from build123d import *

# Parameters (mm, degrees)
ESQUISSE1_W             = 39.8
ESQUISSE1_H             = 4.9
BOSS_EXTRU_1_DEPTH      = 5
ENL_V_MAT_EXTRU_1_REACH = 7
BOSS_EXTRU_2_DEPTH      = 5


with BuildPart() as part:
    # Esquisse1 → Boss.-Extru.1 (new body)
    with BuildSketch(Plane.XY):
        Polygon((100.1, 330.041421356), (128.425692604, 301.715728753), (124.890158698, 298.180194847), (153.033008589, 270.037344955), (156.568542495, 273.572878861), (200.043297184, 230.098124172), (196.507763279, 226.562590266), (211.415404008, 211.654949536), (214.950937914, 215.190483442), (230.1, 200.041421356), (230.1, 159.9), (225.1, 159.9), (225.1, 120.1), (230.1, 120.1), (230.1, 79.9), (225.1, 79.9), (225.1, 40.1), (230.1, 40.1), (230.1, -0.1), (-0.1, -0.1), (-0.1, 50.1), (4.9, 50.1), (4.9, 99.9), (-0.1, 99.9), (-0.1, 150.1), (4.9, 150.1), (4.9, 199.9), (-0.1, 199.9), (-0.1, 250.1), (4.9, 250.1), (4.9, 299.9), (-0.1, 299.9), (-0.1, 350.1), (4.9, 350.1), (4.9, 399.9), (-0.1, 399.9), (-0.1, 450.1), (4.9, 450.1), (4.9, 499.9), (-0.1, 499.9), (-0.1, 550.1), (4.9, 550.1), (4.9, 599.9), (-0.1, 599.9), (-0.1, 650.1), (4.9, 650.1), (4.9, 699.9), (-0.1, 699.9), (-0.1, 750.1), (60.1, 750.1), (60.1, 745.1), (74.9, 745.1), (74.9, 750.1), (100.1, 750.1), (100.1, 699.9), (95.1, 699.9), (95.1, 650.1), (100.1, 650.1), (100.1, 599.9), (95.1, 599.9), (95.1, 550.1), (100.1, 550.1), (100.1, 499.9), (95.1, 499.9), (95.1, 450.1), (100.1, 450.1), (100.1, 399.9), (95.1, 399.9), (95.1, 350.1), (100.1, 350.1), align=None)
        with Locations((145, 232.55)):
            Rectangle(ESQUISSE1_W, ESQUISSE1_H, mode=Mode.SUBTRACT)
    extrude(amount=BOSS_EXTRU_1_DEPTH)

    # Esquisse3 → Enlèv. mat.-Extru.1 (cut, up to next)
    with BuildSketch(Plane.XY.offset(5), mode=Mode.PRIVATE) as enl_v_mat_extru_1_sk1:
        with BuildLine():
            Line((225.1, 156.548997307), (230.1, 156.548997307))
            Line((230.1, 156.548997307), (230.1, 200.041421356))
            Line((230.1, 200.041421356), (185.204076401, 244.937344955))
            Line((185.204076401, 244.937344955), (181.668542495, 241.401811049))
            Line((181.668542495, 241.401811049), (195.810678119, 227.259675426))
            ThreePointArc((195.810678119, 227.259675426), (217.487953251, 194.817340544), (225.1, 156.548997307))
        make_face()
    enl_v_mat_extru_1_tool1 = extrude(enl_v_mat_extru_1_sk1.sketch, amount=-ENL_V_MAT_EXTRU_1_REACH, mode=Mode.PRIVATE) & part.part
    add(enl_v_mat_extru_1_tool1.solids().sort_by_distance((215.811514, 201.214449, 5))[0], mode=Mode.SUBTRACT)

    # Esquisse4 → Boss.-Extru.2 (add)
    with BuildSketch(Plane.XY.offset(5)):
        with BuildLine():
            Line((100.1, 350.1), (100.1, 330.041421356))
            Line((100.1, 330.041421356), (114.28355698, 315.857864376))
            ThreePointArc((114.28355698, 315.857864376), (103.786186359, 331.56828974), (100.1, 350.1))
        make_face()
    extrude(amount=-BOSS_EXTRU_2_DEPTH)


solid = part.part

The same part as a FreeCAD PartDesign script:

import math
import FreeCAD as App
import Part
import Sketcher
Q = App.Units.Quantity


def add_polygon(sketch, points):
    """Adds a closed chain of lines whose ends are joined by coincident constraints."""
    first, n = sketch.GeometryCount, len(points)
    for a, b in zip(points, points[1:] + points[:1]):
        sketch.addGeometry(Part.LineSegment(App.Vector(*a, 0), App.Vector(*b, 0)), False)
    for i in range(n):
        sketch.addConstraint(Sketcher.Constraint("Coincident", first + i, 2, first + (i + 1) % n, 1))

doc = App.newDocument("Part")
body = doc.addObject("PartDesign::Body", "Body")

sketch1 = doc.addObject("Sketcher::SketchObject", "Sketch")
body.addObject(sketch1)
sketch1.AttachmentSupport = (doc.XY_Plane, [""])
sketch1.MapMode = "FlatFace"
add_polygon(sketch1, [(128.4, 301.7), (100.1, 330), (100.1, 350.1), (95.1, 350.1), (95.1, 399.9), (100.1, 399.9), (100.1, 450.1), (95.1, 450.1), (95.1, 499.9), (100.1, 499.9), (100.1, 550.1), (95.1, 550.1), (95.1, 599.9), (100.1, 599.9), (100.1, 650.1), (95.1, 650.1), (95.1, 699.9), (100.1, 699.9), (100.1, 750.1), (74.9, 750.1), (74.9, 745.1), (60.1, 745.1), (60.1, 750.1), (-0.1, 750.1), (-0.1, 699.9), (4.9, 699.9), (4.9, 650.1), (-0.1, 650.1), (-0.1, 599.9), (4.9, 599.9), (4.9, 550.1), (-0.1, 550.1), (-0.1, 499.9), (4.9, 499.9), (4.9, 450.1), (-0.1, 450.1), (-0.1, 399.9), (4.9, 399.9), (4.9, 350.1), (-0.1, 350.1), (-0.1, 299.9), (4.9, 299.9), (4.9, 250.1), (-0.1, 250.1), (-0.1, 199.9), (4.9, 199.9), (4.9, 150.1), (-0.1, 150.1), (-0.1, 99.9), (4.9, 99.9), (4.9, 50.1), (-0.1, 50.1), (-0.1, -0.1), (230.1, -0.1), (230.1, 40.1), (225.1, 40.1), (225.1, 79.9), (230.1, 79.9), (230.1, 120.1), (225.1, 120.1), (225.1, 159.9), (230.1, 159.9), (230.1, 200), (215, 215.2), (211.4, 211.7), (196.5, 226.6), (200, 230.1), (156.6, 273.6), (153, 270), (124.9, 298.2)])
add_polygon(sketch1, [(125.1, 230.1), (125.1, 235), (164.9, 235), (164.9, 230.1)])
sketch1.addConstraint(Sketcher.Constraint("Vertical", 1))
sketch1.addConstraint(Sketcher.Constraint("Horizontal", 2))
sketch1.addConstraint(Sketcher.Constraint("Vertical", 3))
sketch1.addConstraint(Sketcher.Constraint("Horizontal", 4))
sketch1.addConstraint(Sketcher.Constraint("Vertical", 5))
sketch1.addConstraint(Sketcher.Constraint("Horizontal", 6))
sketch1.addConstraint(Sketcher.Constraint("Vertical", 7))
sketch1.addConstraint(Sketcher.Constraint("Horizontal", 8))
sketch1.addConstraint(Sketcher.Constraint("Vertical", 9))
sketch1.addConstraint(Sketcher.Constraint("Horizontal", 10))
sketch1.addConstraint(Sketcher.Constraint("Vertical", 11))
sketch1.addConstraint(Sketcher.Constraint("Horizontal", 12))
sketch1.addConstraint(Sketcher.Constraint("Vertical", 13))
sketch1.addConstraint(Sketcher.Constraint("Horizontal", 14))
sketch1.addConstraint(Sketcher.Constraint("Vertical", 15))
sketch1.addConstraint(Sketcher.Constraint("Horizontal", 16))
sketch1.addConstraint(Sketcher.Constraint("Vertical", 17))
sketch1.addConstraint(Sketcher.Constraint("Horizontal", 18))
sketch1.addConstraint(Sketcher.Constraint("Vertical", 19))
sketch1.addConstraint(Sketcher.Constraint("Horizontal", 20))
sketch1.addConstraint(Sketcher.Constraint("Vertical", 21))
sketch1.addConstraint(Sketcher.Constraint("Horizontal", 22))
sketch1.addConstraint(Sketcher.Constraint("Vertical", 23))
sketch1.addConstraint(Sketcher.Constraint("Horizontal", 24))
sketch1.addConstraint(Sketcher.Constraint("Vertical", 25))
sketch1.addConstraint(Sketcher.Constraint("Horizontal", 26))
sketch1.addConstraint(Sketcher.Constraint("Vertical", 27))
sketch1.addConstraint(Sketcher.Constraint("Horizontal", 28))
sketch1.addConstraint(Sketcher.Constraint("Vertical", 29))
sketch1.addConstraint(Sketcher.Constraint("Horizontal", 30))
sketch1.addConstraint(Sketcher.Constraint("Vertical", 31))
sketch1.addConstraint(Sketcher.Constraint("Horizontal", 32))
sketch1.addConstraint(Sketcher.Constraint("Vertical", 33))
sketch1.addConstraint(Sketcher.Constraint("Horizontal", 34))
sketch1.addConstraint(Sketcher.Constraint("Vertical", 35))
sketch1.addConstraint(Sketcher.Constraint("Horizontal", 36))
sketch1.addConstraint(Sketcher.Constraint("Vertical", 37))
sketch1.addConstraint(Sketcher.Constraint("Horizontal", 38))
sketch1.addConstraint(Sketcher.Constraint("Vertical", 39))
sketch1.addConstraint(Sketcher.Constraint("Horizontal", 40))
sketch1.addConstraint(Sketcher.Constraint("Vertical", 41))
sketch1.addConstraint(Sketcher.Constraint("Horizontal", 42))
sketch1.addConstraint(Sketcher.Constraint("Vertical", 43))
sketch1.addConstraint(Sketcher.Constraint("Horizontal", 44))
sketch1.addConstraint(Sketcher.Constraint("Vertical", 45))
sketch1.addConstraint(Sketcher.Constraint("Horizontal", 46))
sketch1.addConstraint(Sketcher.Constraint("Vertical", 47))
sketch1.addConstraint(Sketcher.Constraint("Horizontal", 48))
sketch1.addConstraint(Sketcher.Constraint("Vertical", 49))
sketch1.addConstraint(Sketcher.Constraint("Horizontal", 50))
sketch1.addConstraint(Sketcher.Constraint("Vertical", 51))
sketch1.addConstraint(Sketcher.Constraint("Horizontal", 52))
sketch1.addConstraint(Sketcher.Constraint("Vertical", 53))
sketch1.addConstraint(Sketcher.Constraint("Horizontal", 54))
sketch1.addConstraint(Sketcher.Constraint("Vertical", 55))
sketch1.addConstraint(Sketcher.Constraint("Horizontal", 56))
sketch1.addConstraint(Sketcher.Constraint("Vertical", 57))
sketch1.addConstraint(Sketcher.Constraint("Horizontal", 58))
sketch1.addConstraint(Sketcher.Constraint("Vertical", 59))
sketch1.addConstraint(Sketcher.Constraint("Horizontal", 60))
sketch1.addConstraint(Sketcher.Constraint("Vertical", 61))
sketch1.addConstraint(Sketcher.Constraint("Vertical", 70))
sketch1.addConstraint(Sketcher.Constraint("Horizontal", 71))
sketch1.addConstraint(Sketcher.Constraint("Vertical", 72))
sketch1.addConstraint(Sketcher.Constraint("Horizontal", 73))
sketch1.addConstraint(Sketcher.Constraint("Parallel", 0, 62))
sketch1.addConstraint(Sketcher.Constraint("Perpendicular", 62, 63))
sketch1.addConstraint(Sketcher.Constraint("Perpendicular", 63, 64))
sketch1.addConstraint(Sketcher.Constraint("Perpendicular", 64, 65))
sketch1.addConstraint(Sketcher.Constraint("Perpendicular", 65, 66))
sketch1.addConstraint(Sketcher.Constraint("Perpendicular", 66, 67))
sketch1.addConstraint(Sketcher.Constraint("Perpendicular", 67, 68))
sketch1.addConstraint(Sketcher.Constraint("Perpendicular", 68, 69))
sketch1.addConstraint(Sketcher.Constraint("Horizontal", 18, 2, 21, 2))
sketch1.addConstraint(Sketcher.Constraint("Horizontal", 16, 2, 23, 2))
sketch1.addConstraint(Sketcher.Constraint("Horizontal", 14, 2, 25, 2))
sketch1.addConstraint(Sketcher.Constraint("Horizontal", 12, 2, 27, 2))
sketch1.addConstraint(Sketcher.Constraint("Horizontal", 10, 2, 29, 2))
sketch1.addConstraint(Sketcher.Constraint("Horizontal", 8, 2, 31, 2))
sketch1.addConstraint(Sketcher.Constraint("Horizontal", 6, 2, 33, 2))
sketch1.addConstraint(Sketcher.Constraint("Horizontal", 4, 2, 35, 2))
sketch1.addConstraint(Sketcher.Constraint("Horizontal", 2, 2, 37, 2))
sketch1.addConstraint(Sketcher.Constraint("Vertical", 1, 2, 4, 2))
sketch1.addConstraint(Sketcher.Constraint("Vertical", 3, 2, 6, 2))
sketch1.addConstraint(Sketcher.Constraint("Vertical", 5, 2, 8, 2))
sketch1.addConstraint(Sketcher.Constraint("Vertical", 7, 2, 10, 2))
sketch1.addConstraint(Sketcher.Constraint("Vertical", 9, 2, 12, 2))
sketch1.addConstraint(Sketcher.Constraint("Vertical", 11, 2, 14, 2))
sketch1.addConstraint(Sketcher.Constraint("Vertical", 13, 2, 16, 2))
sketch1.addConstraint(Sketcher.Constraint("Vertical", 23, 2, 26, 2))
sketch1.addConstraint(Sketcher.Constraint("Vertical", 25, 2, 28, 2))
sketch1.addConstraint(Sketcher.Constraint("Vertical", 27, 2, 30, 2))
sketch1.addConstraint(Sketcher.Constraint("Vertical", 29, 2, 32, 2))
sketch1.addConstraint(Sketcher.Constraint("Vertical", 31, 2, 34, 2))
sketch1.addConstraint(Sketcher.Constraint("Vertical", 33, 2, 36, 2))
sketch1.addConstraint(Sketcher.Constraint("Vertical", 35, 2, 38, 2))
sketch1.addConstraint(Sketcher.Constraint("Vertical", 37, 2, 40, 2))
sketch1.addConstraint(Sketcher.Constraint("Vertical", 39, 2, 42, 2))
sketch1.addConstraint(Sketcher.Constraint("Vertical", 41, 2, 44, 2))
sketch1.addConstraint(Sketcher.Constraint("Vertical", 43, 2, 46, 2))
sketch1.addConstraint(Sketcher.Constraint("Vertical", 45, 2, 48, 2))
sketch1.addConstraint(Sketcher.Constraint("Vertical", 47, 2, 50, 2))
sketch1.addConstraint(Sketcher.Constraint("Vertical", 53, 2, 56, 2))
sketch1.addConstraint(Sketcher.Constraint("Vertical", 55, 2, 58, 2))
sketch1.addConstraint(Sketcher.Constraint("Vertical", 57, 2, 60, 2))
sketch1.addConstraint(Sketcher.Constraint("Equal", 16, 24))
sketch1.addConstraint(Sketcher.Constraint("Equal", 50, 54))
sketch1.addConstraint(Sketcher.Constraint("Equal", 3, 7))
sketch1.addConstraint(Sketcher.Constraint("Equal", 5, 9))
sketch1.addConstraint(Sketcher.Constraint("Equal", 7, 11))
sketch1.addConstraint(Sketcher.Constraint("Equal", 9, 13))
sketch1.addConstraint(Sketcher.Constraint("Equal", 11, 15))
sketch1.addConstraint(Sketcher.Constraint("Equal", 13, 17))
sketch1.addConstraint(Sketcher.Constraint("Equal", 60, 19))
sketch1.addConstraint(Sketcher.Constraint("Equal", 35, 39))
sketch1.addConstraint(Sketcher.Constraint("Equal", 37, 41))
sketch1.addConstraint(Sketcher.Constraint("Equal", 39, 43))
sketch1.addConstraint(Sketcher.Constraint("Equal", 41, 45))
sketch1.addConstraint(Sketcher.Constraint("Equal", 43, 47))
sketch1.addConstraint(Sketcher.Constraint("Equal", 45, 49))
sketch1.addConstraint(Sketcher.Constraint("Equal", 47, 51))
sketch1.addConstraint(Sketcher.Constraint("Equal", 73, 55))
sketch1.addConstraint(Sketcher.Constraint("Equal", 53, 57))
sketch1.addConstraint(Sketcher.Constraint("Equal", 55, 59))
sketch1.addConstraint(Sketcher.Constraint("Equal", 63, 65))
sketch1.addConstraint(Sketcher.Constraint("Equal", 65, 67))
sketch1.addConstraint(Sketcher.Constraint("Equal", 67, 69))
sketch1.addConstraint(Sketcher.Constraint("DistanceX", 2, 2, 2, 1, Q("5 mm")))
sketch1.addConstraint(Sketcher.Constraint("Angle", 0, Q("135 deg")))
sketch1.addConstraint(Sketcher.Constraint("Distance", 63, Q("5 mm")))
sketch1.addConstraint(Sketcher.Constraint("DistanceX", 18, 2, 18, 1, Q("25.2 mm")))
sketch1.addConstraint(Sketcher.Constraint("DistanceX", 20, 2, 20, 1, Q("14.8 mm")))
sketch1.addConstraint(Sketcher.Constraint("DistanceX", 22, 2, 22, 1, Q("60.2 mm")))
sketch1.addConstraint(Sketcher.Constraint("DistanceX", 52, 1, 52, 2, Q("230.2 mm")))
sketch1.addConstraint(Sketcher.Constraint("DistanceX", 71, 1, 71, 2, Q("39.8 mm")))
sketch1.addConstraint(Sketcher.Constraint("DistanceY", 3, 1, 3, 2, Q("49.8 mm")))
sketch1.addConstraint(Sketcher.Constraint("DistanceY", 5, 1, 5, 2, Q("50.2 mm")))
sketch1.addConstraint(Sketcher.Constraint("DistanceY", 53, 1, 53, 2, Q("40.2 mm")))
sketch1.addConstraint(Sketcher.Constraint("DistanceY", 70, 1, 70, 2, Q("4.9 mm")))
sketch1.addConstraint(Sketcher.Constraint("DistanceY", -1, 1, 70, 2, Q("235 mm")))
sketch1.addConstraint(Sketcher.Constraint("Distance", 68, Q("39.8 mm")))
sketch1.addConstraint(Sketcher.Constraint("DistanceX", -1, 1, 0, 2, Q("100.1 mm")))
sketch1.addConstraint(Sketcher.Constraint("DistanceY", -1, 1, 1, 2, Q("350.1 mm")))
sketch1.addConstraint(Sketcher.Constraint("DistanceX", -1, 1, 70, 2, Q("125.1 mm")))
sketch1.addConstraint(Sketcher.Constraint("DistanceY", 1, 1, 1, 2, Q("20.058579 mm")))
sketch1.addConstraint(Sketcher.Constraint("Distance", 0, Q("40.058579 mm")))
sketch1.addConstraint(Sketcher.Constraint("Distance", 62, Q("21.424009 mm")))
sketch1.addConstraint(Sketcher.Constraint("DistanceY", -1, 1, 64, 2, Q("226.56259 mm")))
pad1 = doc.addObject("PartDesign::Pad", "Pad")
body.addObject(pad1)
pad1.Profile = sketch1
pad1.Length = 5

sketch2 = doc.addObject("Sketcher::SketchObject", "Sketch001")
body.addObject(sketch2)
sketch2.AttachmentSupport = (doc.XY_Plane, [""])
sketch2.MapMode = "FlatFace"
sketch2.AttachmentOffset = App.Placement(App.Vector(0, 0, 5), App.Rotation())
sketch2.addGeometry(Part.LineSegment(App.Vector(225, 157, 0), App.Vector(230, 157, 0)), False)
sketch2.addGeometry(Part.LineSegment(App.Vector(230, 157, 0), App.Vector(230, 200, 0)), False)
sketch2.addGeometry(Part.LineSegment(App.Vector(230, 200, 0), App.Vector(185, 245, 0)), False)
sketch2.addGeometry(Part.LineSegment(App.Vector(185, 245, 0), App.Vector(182, 241, 0)), False)
sketch2.addGeometry(Part.LineSegment(App.Vector(182, 241, 0), App.Vector(196, 227, 0)), False)
sketch2.addGeometry(Part.ArcOfCircle(Part.Circle(App.Vector(125, 157, 0), App.Vector(0, 0, 1), 100), math.radians(0), math.radians(45)), False)
sketch2.addConstraint(Sketcher.Constraint("Coincident", 0, 2, 1, 1))
sketch2.addConstraint(Sketcher.Constraint("Coincident", 1, 2, 2, 1))
sketch2.addConstraint(Sketcher.Constraint("Coincident", 2, 2, 3, 1))
sketch2.addConstraint(Sketcher.Constraint("Coincident", 3, 2, 4, 1))
sketch2.addConstraint(Sketcher.Constraint("Tangent", 4, 2, 5, 2))
sketch2.addConstraint(Sketcher.Constraint("Coincident", 5, 1, 0, 1))
sketch2.addConstraint(Sketcher.Constraint("Horizontal", 0))
sketch2.addConstraint(Sketcher.Constraint("Vertical", 1))
sketch2.addConstraint(Sketcher.Constraint("Perpendicular", 2, 3))
sketch2.addConstraint(Sketcher.Constraint("Perpendicular", 3, 4))
sketch2.addConstraint(Sketcher.Constraint("Horizontal", 5, 3, 0, 2))
sketch2.addConstraint(Sketcher.Constraint("Radius", 5, Q("100 mm")))
sketch2.addConstraint(Sketcher.Constraint("DistanceX", 0, 1, 0, 2, Q("5 mm")))
sketch2.addConstraint(Sketcher.Constraint("Angle", 2, Q("135 deg")))
sketch2.addConstraint(Sketcher.Constraint("Distance", 3, Q("5 mm")))
sketch2.addConstraint(Sketcher.Constraint("Distance", 4, Q("20 mm")))
sketch2.addConstraint(Sketcher.Constraint("DistanceX", -1, 1, 5, 3, Q("125.1 mm")))
sketch2.addConstraint(Sketcher.Constraint("DistanceY", -1, 1, 1, 2, Q("200.041421 mm")))
pocket1 = doc.addObject("PartDesign::Pocket", "Pocket")
body.addObject(pocket1)
pocket1.Profile = sketch2
pocket1.Type = "UpToFirst"

sketch3 = doc.addObject("Sketcher::SketchObject", "Sketch002")
body.addObject(sketch3)
sketch3.AttachmentSupport = (doc.XY_Plane, [""])
sketch3.MapMode = "FlatFace"
sketch3.AttachmentOffset = App.Placement(App.Vector(0, 0, 5), App.Rotation())
sketch3.addGeometry(Part.LineSegment(App.Vector(100, 350, 0), App.Vector(100, 330, 0)), False)
sketch3.addGeometry(Part.LineSegment(App.Vector(100, 330, 0), App.Vector(114, 316, 0)), False)
sketch3.addGeometry(Part.ArcOfCircle(Part.Circle(App.Vector(149, 350, 0), App.Vector(0, 0, 1), 48), math.radians(180), math.radians(225)), False)
sketch3.addConstraint(Sketcher.Constraint("Coincident", 0, 2, 1, 1))
sketch3.addConstraint(Sketcher.Constraint("Tangent", 1, 2, 2, 2))
sketch3.addConstraint(Sketcher.Constraint("Tangent", 2, 1, 0, 1))
sketch3.addConstraint(Sketcher.Constraint("Vertical", 0))
sketch3.addConstraint(Sketcher.Constraint("Angle", 1, Q("-45 deg")))
sketch3.addConstraint(Sketcher.Constraint("DistanceY", -1, 1, 2, 3, Q("350.1 mm")))
sketch3.addConstraint(Sketcher.Constraint("DistanceX", -1, 1, 0, 2, Q("100.1 mm")))
sketch3.addConstraint(Sketcher.Constraint("Radius", 2, Q("48.425693 mm")))
pad2 = doc.addObject("PartDesign::Pad", "Pad001")
body.addObject(pad2)
pad2.Profile = sketch3
pad2.Length = 5
pad2.Reversed = True

doc.recompute()
